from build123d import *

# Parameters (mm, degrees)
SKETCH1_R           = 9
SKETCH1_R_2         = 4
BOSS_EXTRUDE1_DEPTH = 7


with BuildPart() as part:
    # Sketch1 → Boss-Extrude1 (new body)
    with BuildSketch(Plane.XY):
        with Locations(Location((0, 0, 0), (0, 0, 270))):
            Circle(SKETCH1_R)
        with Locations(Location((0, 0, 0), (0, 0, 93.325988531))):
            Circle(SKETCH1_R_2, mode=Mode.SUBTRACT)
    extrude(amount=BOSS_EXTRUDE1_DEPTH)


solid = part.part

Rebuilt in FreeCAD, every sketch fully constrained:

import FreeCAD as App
import Part
import Sketcher
Q = App.Units.Quantity

doc = App.newDocument("Part")
body = doc.addObject("PartDesign::Body", "Body")

# Sketch on XY plane
sketch1 = doc.addObject("Sketcher::SketchObject", "Sketch")
body.addObject(sketch1)
sketch1.AttachmentSupport = (doc.XY_Plane, [""])
sketch1.MapMode = "FlatFace"
sketch1.addGeometry(Part.Circle(App.Vector(0, 0, 0), App.Vector(0, 0, 1), 9), False)
sketch1.addGeometry(Part.Circle(App.Vector(0, 0, 0), App.Vector(0, 0, 1), 4), False)
sketch1.addConstraint(Sketcher.Constraint("Coincident", 0, 3, -1, 1))
sketch1.addConstraint(Sketcher.Constraint("Coincident", 1, 3, -1, 1))
sketch1.addConstraint(Sketcher.Constraint("Diameter", 0, Q("18 mm")))
sketch1.addConstraint(Sketcher.Constraint("Diameter", 1, Q("8 mm")))
pad1 = doc.addObject("PartDesign::Pad", "Pad")
body.addObject(pad1)
pad1.Profile = sketch1
pad1.Length = 7

doc.recompute()
